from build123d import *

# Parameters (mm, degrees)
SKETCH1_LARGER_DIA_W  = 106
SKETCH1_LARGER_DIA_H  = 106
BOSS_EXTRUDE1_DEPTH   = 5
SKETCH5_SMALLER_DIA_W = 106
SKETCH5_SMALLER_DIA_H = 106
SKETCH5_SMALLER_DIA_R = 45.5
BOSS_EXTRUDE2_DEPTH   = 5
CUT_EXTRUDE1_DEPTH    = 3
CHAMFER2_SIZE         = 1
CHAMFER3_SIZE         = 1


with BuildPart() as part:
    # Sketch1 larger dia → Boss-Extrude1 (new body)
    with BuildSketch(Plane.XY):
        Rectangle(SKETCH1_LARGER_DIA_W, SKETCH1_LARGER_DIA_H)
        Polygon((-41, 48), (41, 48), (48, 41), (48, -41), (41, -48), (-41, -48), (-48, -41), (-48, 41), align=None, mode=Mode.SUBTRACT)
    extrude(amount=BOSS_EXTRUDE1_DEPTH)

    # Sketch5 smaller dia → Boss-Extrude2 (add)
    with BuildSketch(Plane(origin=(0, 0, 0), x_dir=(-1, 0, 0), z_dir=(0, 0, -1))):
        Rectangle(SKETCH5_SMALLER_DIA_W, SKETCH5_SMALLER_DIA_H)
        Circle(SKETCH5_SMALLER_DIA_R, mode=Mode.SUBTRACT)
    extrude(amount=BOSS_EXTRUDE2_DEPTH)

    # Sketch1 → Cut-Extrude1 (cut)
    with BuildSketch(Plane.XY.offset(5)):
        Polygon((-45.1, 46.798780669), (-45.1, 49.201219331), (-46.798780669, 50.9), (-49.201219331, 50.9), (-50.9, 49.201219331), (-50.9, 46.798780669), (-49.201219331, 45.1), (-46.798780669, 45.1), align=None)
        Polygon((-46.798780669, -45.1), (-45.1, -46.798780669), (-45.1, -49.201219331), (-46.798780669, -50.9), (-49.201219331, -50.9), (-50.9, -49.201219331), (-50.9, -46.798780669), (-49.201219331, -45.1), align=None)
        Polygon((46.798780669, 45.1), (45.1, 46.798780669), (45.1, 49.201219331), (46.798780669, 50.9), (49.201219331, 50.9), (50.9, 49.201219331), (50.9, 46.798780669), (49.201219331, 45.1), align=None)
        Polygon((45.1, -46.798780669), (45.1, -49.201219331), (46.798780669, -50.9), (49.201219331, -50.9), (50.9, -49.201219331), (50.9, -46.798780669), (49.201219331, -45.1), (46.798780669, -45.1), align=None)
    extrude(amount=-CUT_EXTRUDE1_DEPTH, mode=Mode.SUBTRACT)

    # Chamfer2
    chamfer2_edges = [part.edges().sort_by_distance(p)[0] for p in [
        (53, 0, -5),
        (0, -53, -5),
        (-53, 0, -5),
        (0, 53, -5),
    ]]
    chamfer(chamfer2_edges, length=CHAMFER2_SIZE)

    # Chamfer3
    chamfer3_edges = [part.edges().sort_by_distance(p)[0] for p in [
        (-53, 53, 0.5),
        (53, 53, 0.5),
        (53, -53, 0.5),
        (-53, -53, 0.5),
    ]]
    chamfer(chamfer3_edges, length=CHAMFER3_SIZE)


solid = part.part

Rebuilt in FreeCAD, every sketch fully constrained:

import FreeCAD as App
import Part
import Sketcher
from FreeCAD import Vector
Q = App.Units.Quantity


def edges_at(feature, points):
    """Names of the edges that pass closest to the given points."""
    edges = feature.Shape.Edges
    near = lambda p: min(range(len(edges)), key=lambda i: edges[i].distToShape(Part.Vertex(*p))[0])
    return sorted({f"Edge{near(p) + 1}" for p in points})


def add_polygon(sketch, points):
    """Adds a closed chain of lines whose ends are joined by coincident constraints."""
    first, n = sketch.GeometryCount, len(points)
    for a, b in zip(points, points[1:] + points[:1]):
        sketch.addGeometry(Part.LineSegment(App.Vector(*a, 0), App.Vector(*b, 0)), False)
    for i in range(n):
        sketch.addConstraint(Sketcher.Constraint("Coincident", first + i, 2, first + (i + 1) % n, 1))

doc = App.newDocument("Part")
body = doc.addObject("PartDesign::Body", "Body")

sketch1 = body.newObject("Sketcher::SketchObject", "Sketch")
sketch1.AttachmentSupport = (doc.getObject("XY_Plane"), [""])
sketch1.MapMode = "FlatFace"
add_polygon(sketch1, [(-53, 53), (-53, -53), (53, -53), (53, 53)])
add_polygon(sketch1, [(-48, 41), (-41, 48), (41, 48), (48, 41), (48, -41), (41, -48), (-41, -48), (-48, -41)])
sketch1.addConstraint([
    Sketcher.Constraint("Vertical", 0),
    Sketcher.Constraint("Horizontal", 1),
    Sketcher.Constraint("Vertical", 2),
    Sketcher.Constraint("Horizontal", 3),
    Sketcher.Constraint("Horizontal", 5),
    Sketcher.Constraint("Vertical", 7),
    Sketcher.Constraint("Horizontal", 9),
    Sketcher.Constraint("Vertical", 11),
    Sketcher.Constraint("Symmetric", 0, 2, 2, 2, -1, 1),
    Sketcher.Constraint("Symmetric", 4, 2, 8, 2, -1, 1),
    Sketcher.Constraint("Symmetric", 6, 2, 10, 2, -1, 1),
    Sketcher.Constraint("Perpendicular", 4, 6),
    Sketcher.Constraint("Perpendicular", 6, 8),
    Sketcher.Constraint("Perpendicular", 8, 10),
    Sketcher.Constraint("Horizontal", 7, 2, 10, 2),
    Sketcher.Constraint("Vertical", 5, 2, 8, 2),
    Sketcher.Constraint("Equal", 3, 0),
    Sketcher.Constraint("Equal", 9, 7),
    Sketcher.Constraint("DistanceX", 1, 1, 1, 2, Q("106 mm")),
    Sketcher.Constraint("DistanceX", 5, 1, 5, 2, Q("82 mm")),
    Sketcher.Constraint("DistanceY", -1, 1, 4, 2, Q("48 mm")),
])
pad1 = body.newObject("PartDesign::Pad", "Pad")
pad1.Profile = sketch1
pad1.Length = 5

sketch2 = body.newObject("Sketcher::SketchObject", "Sketch001")
sketch2.AttachmentSupport = (doc.getObject("XY_Plane"), [""])
sketch2.MapMode = "FlatFace"
add_polygon(sketch2, [(53, 53), (53, -53), (-53, -53), (-53, 53)])
sketch2.addGeometry(Part.Circle(Vector(0, 0, 0), Vector(0, 0, 1), 45.5), False)
sketch2.addConstraint([
    Sketcher.Constraint("Vertical", 0),
    Sketcher.Constraint("Horizontal", 1),
    Sketcher.Constraint("Vertical", 2),
    Sketcher.Constraint("Horizontal", 3),
    Sketcher.Constraint("Coincident", 4, 3, -1, 1),
    Sketcher.Constraint("Symmetric", 0, 2, 2, 2, -1, 1),
    Sketcher.Constraint("Equal", 3, 0),
    Sketcher.Constraint("Diameter", 4, Q("91 mm")),
    Sketcher.Constraint("DistanceX", 1, 2, 1, 1, Q("106 mm")),
])
pad2 = body.newObject("PartDesign::Pad", "Pad001")
pad2.Profile = sketch2
pad2.Length = 5
pad2.Reversed = True

sketch3 = body.newObject("Sketcher::SketchObject", "Sketch002")
sketch3.AttachmentSupport = (doc.getObject("XY_Plane"), [""])
sketch3.MapMode = "FlatFace"
sketch3.AttachmentOffset = App.Placement(Vector(0, 0, 5), App.Rotation())
add_polygon(sketch3, [(-45.1, 46.798781), (-45.1, 49.201219), (-46.798781, 50.9), (-49.201219, 50.9), (-50.9, 49.201219), (-50.9, 46.798781), (-49.201219, 45.1), (-46.798781, 45.1)])
add_polygon(sketch3, [(-45.1, -46.798781), (-46.798781, -45.1), (-49.201219, -45.1), (-50.9, -46.798781), (-50.9, -49.201219), (-49.201219, -50.9), (-46.798781, -50.9), (-45.1, -49.201219)])
add_polygon(sketch3, [(45.1, 46.798781), (46.798781, 45.1), (49.201219, 45.1), (50.9, 46.798781), (50.9, 49.201219), (49.201219, 50.9), (46.798781, 50.9), (45.1, 49.201219)])
add_polygon(sketch3, [(45.1, -46.798781), (45.1, -49.201219), (46.798781, -50.9), (49.201219, -50.9), (50.9, -49.201219), (50.9, -46.798781), (49.201219, -45.1), (46.798781, -45.1)])
sketch3.addConstraint([
    Sketcher.Constraint("Vertical", 0),
    Sketcher.Constraint("Horizontal", 2),
    Sketcher.Constraint("Vertical", 4),
    Sketcher.Constraint("Horizontal", 6),
    Sketcher.Constraint("Horizontal", 9),
    Sketcher.Constraint("Vertical", 11),
    Sketcher.Constraint("Horizontal", 13),
    Sketcher.Constraint("Vertical", 15),
    Sketcher.Constraint("Horizontal", 17),
    Sketcher.Constraint("Vertical", 19),
    Sketcher.Constraint("Horizontal", 21),
    Sketcher.Constraint("Vertical", 23),
    Sketcher.Constraint("Vertical", 24),
    Sketcher.Constraint("Horizontal", 26),
    Sketcher.Constraint("Vertical", 28),
    Sketcher.Constraint("Horizontal", 30),
    Sketcher.Constraint("Symmetric", 8, 2, 16, 2, -1, 1),
    Sketcher.Constraint("Symmetric", 10, 2, 18, 2, -1, 1),
    Sketcher.Constraint("Symmetric", 12, 2, 20, 2, -1, 1),
    Sketcher.Constraint("Symmetric", 14, 2, 22, 2, -1, 1),
    Sketcher.Constraint("Symmetric", 0, 2, 24, 2, -1, 1),
    Sketcher.Constraint("Symmetric", 1, 2, 25, 2, -1, 1),
    Sketcher.Constraint("Symmetric", 3, 2, 27, 2, -1, 1),
    Sketcher.Constraint("Symmetric", 5, 2, 29, 2, -1, 1),
    Sketcher.Constraint("Symmetric", 6, 2, 16, 2, -2),
    Sketcher.Constraint("Symmetric", 4, 2, 18, 2, -2),
    Sketcher.Constraint("Symmetric", 2, 2, 20, 2, -2),
    Sketcher.Constraint("Symmetric", 0, 2, 22, 2, -2),
    Sketcher.Constraint("Perpendicular", 1, 3),
    Sketcher.Constraint("Perpendicular", 3, 5),
    Sketcher.Constraint("Perpendicular", 5, 7),
    Sketcher.Constraint("Perpendicular", 7, 8),
    Sketcher.Constraint("Perpendicular", 8, 10),
    Sketcher.Constraint("Perpendicular", 10, 12),
    Sketcher.Constraint("Perpendicular", 12, 14),
    Sketcher.Constraint("Perpendicular", 14, 16),
    Sketcher.Constraint("Perpendicular", 16, 18),
    Sketcher.Constraint("Perpendicular", 18, 20),
    Sketcher.Constraint("Perpendicular", 20, 22),
    Sketcher.Constraint("Perpendicular", 25, 27),
    Sketcher.Constraint("Perpendicular", 27, 29),
    Sketcher.Constraint("Perpendicular", 29, 31),
    Sketcher.Constraint("Horizontal", 0, 2, 3, 2),
    Sketcher.Constraint("Horizontal", 4, 2, 7, 2),
    Sketcher.Constraint("Horizontal", 11, 2, 14, 2),
    Sketcher.Constraint("Horizontal", 28, 2, 31, 2),
    Sketcher.Constraint("Vertical", 2, 2, 5, 2),
    Sketcher.Constraint("Equal", 30, 0),
    Sketcher.Constraint("DistanceY", 12, 2, 5, 2, Q("96 mm")),
    Sketcher.Constraint("DistanceX", 5, 2, 16, 2, Q("96 mm")),
    Sketcher.Constraint("DistanceX", 0, 2, -1, 1, Q("45.1 mm")),
    Sketcher.Constraint("DistanceX", 2, 2, 2, 1, Q("2.402439 mm")),
])
pocket1 = body.newObject("PartDesign::Pocket", "Pocket")
pocket1.Profile = sketch3
pocket1.Length = 3
doc.recompute()

chamfer = body.newObject("PartDesign::Chamfer", "Chamfer")
chamfer.Base = (pocket1, edges_at(pocket1, [
    (53, 0, -5),
    (0, -53, -5),
    (-53, 0, -5),
    (0, 53, -5),
]))
chamfer.Size = 1
doc.recompute()

chamfer2 = body.newObject("PartDesign::Chamfer", "Chamfer001")
chamfer2.Base = (chamfer, edges_at(chamfer, [
    (-53, 53, 0.5),
    (53, 53, 0.5),
    (53, -53, 0.5),
    (-53, -53, 0.5),
]))
chamfer2.Size = 1

doc.recompute()
